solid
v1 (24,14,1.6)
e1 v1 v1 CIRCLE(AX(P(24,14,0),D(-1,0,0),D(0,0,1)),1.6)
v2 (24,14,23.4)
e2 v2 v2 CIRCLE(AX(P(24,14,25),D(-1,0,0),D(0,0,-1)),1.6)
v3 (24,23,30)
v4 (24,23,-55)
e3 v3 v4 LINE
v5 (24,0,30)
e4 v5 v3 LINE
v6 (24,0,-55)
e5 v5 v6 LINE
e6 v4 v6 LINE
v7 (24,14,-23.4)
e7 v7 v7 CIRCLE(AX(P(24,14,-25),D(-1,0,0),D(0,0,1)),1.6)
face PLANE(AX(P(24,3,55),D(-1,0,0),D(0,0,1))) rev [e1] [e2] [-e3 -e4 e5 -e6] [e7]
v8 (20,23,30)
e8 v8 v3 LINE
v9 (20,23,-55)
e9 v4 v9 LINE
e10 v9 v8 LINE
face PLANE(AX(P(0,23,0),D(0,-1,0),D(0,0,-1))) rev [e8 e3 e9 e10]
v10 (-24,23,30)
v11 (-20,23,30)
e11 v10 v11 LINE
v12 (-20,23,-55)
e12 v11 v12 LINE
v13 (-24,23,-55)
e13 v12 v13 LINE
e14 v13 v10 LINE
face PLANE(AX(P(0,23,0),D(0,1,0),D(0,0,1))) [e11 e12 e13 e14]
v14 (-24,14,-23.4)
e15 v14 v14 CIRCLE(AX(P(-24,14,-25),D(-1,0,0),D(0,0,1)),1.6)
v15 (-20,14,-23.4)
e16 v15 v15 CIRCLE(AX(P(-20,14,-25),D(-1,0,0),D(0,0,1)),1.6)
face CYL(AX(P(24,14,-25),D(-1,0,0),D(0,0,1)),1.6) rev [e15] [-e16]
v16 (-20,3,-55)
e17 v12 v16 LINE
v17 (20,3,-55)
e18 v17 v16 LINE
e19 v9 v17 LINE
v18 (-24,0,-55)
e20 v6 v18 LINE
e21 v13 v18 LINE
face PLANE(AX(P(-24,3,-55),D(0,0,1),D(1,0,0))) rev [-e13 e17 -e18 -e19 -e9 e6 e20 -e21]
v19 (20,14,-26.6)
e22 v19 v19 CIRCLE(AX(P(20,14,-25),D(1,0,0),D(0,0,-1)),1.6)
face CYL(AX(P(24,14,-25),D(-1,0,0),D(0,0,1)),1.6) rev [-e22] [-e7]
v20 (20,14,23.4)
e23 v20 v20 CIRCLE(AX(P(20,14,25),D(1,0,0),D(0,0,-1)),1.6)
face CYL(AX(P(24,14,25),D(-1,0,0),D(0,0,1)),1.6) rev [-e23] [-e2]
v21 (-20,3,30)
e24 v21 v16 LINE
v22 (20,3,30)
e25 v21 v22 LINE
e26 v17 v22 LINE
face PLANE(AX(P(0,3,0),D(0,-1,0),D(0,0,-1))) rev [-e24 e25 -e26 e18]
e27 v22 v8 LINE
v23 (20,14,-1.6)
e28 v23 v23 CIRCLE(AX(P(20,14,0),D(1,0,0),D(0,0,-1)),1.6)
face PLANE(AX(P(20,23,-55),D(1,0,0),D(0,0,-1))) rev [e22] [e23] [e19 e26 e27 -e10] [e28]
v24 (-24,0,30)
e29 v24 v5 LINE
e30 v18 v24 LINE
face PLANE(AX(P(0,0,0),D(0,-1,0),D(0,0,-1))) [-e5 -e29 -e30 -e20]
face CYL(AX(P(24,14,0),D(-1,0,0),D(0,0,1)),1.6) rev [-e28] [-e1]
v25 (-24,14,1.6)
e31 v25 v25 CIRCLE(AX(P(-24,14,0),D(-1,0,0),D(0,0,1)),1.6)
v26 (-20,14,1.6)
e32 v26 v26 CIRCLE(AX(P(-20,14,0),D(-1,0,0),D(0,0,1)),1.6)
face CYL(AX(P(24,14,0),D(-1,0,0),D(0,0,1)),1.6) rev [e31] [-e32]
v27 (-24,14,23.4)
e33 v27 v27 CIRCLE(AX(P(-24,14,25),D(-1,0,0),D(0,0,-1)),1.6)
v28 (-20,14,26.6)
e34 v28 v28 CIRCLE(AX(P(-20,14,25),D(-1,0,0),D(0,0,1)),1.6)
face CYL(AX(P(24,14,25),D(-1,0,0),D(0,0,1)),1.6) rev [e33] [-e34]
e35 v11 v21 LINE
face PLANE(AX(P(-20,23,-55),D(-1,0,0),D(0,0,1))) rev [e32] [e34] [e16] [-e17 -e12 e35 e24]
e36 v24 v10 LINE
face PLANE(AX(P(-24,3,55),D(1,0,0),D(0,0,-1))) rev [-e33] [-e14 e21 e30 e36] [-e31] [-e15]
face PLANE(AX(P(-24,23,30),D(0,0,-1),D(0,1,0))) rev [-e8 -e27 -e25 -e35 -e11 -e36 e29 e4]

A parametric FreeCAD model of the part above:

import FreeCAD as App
import Part
import Sketcher
Q = App.Units.Quantity

doc = App.newDocument("Part")
body = doc.addObject("PartDesign::Body", "Body")

# Sketch on XZ plane
sketch1 = body.newObject("Sketcher::SketchObject", "Sketch")
sketch1.AttachmentSupport = (doc.getObject("XZ_Plane"), [""])
sketch1.MapMode = "FlatFace"
sketch1.addGeometry(Part.LineSegment(App.Vector(-24, -55, 0), App.Vector(-24, 55, 0)), False)
sketch1.addGeometry(Part.LineSegment(App.Vector(-24, 55, 0), App.Vector(24, 55, 0)), False)
sketch1.addGeometry(Part.LineSegment(App.Vector(24, 55, 0), App.Vector(24, -55, 0)), False)
sketch1.addGeometry(Part.LineSegment(App.Vector(24, -55, 0), App.Vector(-24, -55, 0)), False)
sketch1.addConstraint(Sketcher.Constraint("Coincident", 0, 2, 1, 1))
sketch1.addConstraint(Sketcher.Constraint("Coincident", 1, 2, 2, 1))
sketch1.addConstraint(Sketcher.Constraint("Coincident", 2, 2, 3, 1))
sketch1.addConstraint(Sketcher.Constraint("Coincident", 3, 2, 0, 1))
sketch1.addConstraint(Sketcher.Constraint("Vertical", 0))
sketch1.addConstraint(Sketcher.Constraint("Horizontal", 1))
sketch1.addConstraint(Sketcher.Constraint("Vertical", 2))
sketch1.addConstraint(Sketcher.Constraint("Horizontal", 3))
sketch1.addConstraint(Sketcher.Constraint("Symmetric", 0, 2, 2, 2, -1, 1))
sketch1.addConstraint(Sketcher.Constraint("DistanceX", 1, 1, 1, 2, Q("48 mm")))
sketch1.addConstraint(Sketcher.Constraint("DistanceY", 0, 1, 0, 2, Q("110 mm")))
pad1 = body.newObject("PartDesign::Pad", "Pad")
pad1.Profile = sketch1
pad1.Length = 3
pad1.Reversed = True

# Sketch on XZ plane
sketch2 = body.newObject("Sketcher::SketchObject", "Sketch001")
sketch2.AttachmentSupport = (doc.getObject("XZ_Plane"), [""])
sketch2.MapMode = "FlatFace"
sketch2.AttachmentOffset = App.Placement(App.Vector(0, 0, -3), App.Rotation())
sketch2.addGeometry(Part.LineSegment(App.Vector(-24, -55, 0), App.Vector(-24, 55, 0)), False)
sketch2.addGeometry(Part.LineSegment(App.Vector(-24, 55, 0), App.Vector(-20, 55, 0)), False)
sketch2.addGeometry(Part.LineSegment(App.Vector(-20, 55, 0), App.Vector(-20, -55, 0)), False)
sketch2.addGeometry(Part.LineSegment(App.Vector(-20, -55, 0), App.Vector(-24, -55, 0)), False)
sketch2.addGeometry(Part.LineSegment(App.Vector(20, -55, 0), App.Vector(20, 55, 0)), False)
sketch2.addGeometry(Part.LineSegment(App.Vector(20, 55, 0), App.Vector(24, 55, 0)), False)
sketch2.addGeometry(Part.LineSegment(App.Vector(24, 55, 0), App.Vector(24, -55, 0)), False)
sketch2.addGeometry(Part.LineSegment(App.Vector(24, -55, 0), App.Vector(20, -55, 0)), False)
sketch2.addConstraint(Sketcher.Constraint("Coincident", 0, 2, 1, 1))
sketch2.addConstraint(Sketcher.Constraint("Coincident", 1, 2, 2, 1))
sketch2.addConstraint(Sketcher.Constraint("Coincident", 2, 2, 3, 1))
sketch2.addConstraint(Sketcher.Constraint("Coincident", 3, 2, 0, 1))
sketch2.addConstraint(Sketcher.Constraint("Coincident", 4, 2, 5, 1))
sketch2.addConstraint(Sketcher.Constraint("Coincident", 5, 2, 6, 1))
sketch2.addConstraint(Sketcher.Constraint("Coincident", 6, 2, 7, 1))
sketch2.addConstraint(Sketcher.Constraint("Coincident", 7, 2, 4, 1))
sketch2.addConstraint(Sketcher.Constraint("Vertical", 0))
sketch2.addConstraint(Sketcher.Constraint("Horizontal", 1))
sketch2.addConstraint(Sketcher.Constraint("Vertical", 2))
sketch2.addConstraint(Sketcher.Constraint("Horizontal", 3))
sketch2.addConstraint(Sketcher.Constraint("Vertical", 4))
sketch2.addConstraint(Sketcher.Constraint("Horizontal", 5))
sketch2.addConstraint(Sketcher.Constraint("Vertical", 6))
sketch2.addConstraint(Sketcher.Constraint("Horizontal", 7))
sketch2.addConstraint(Sketcher.Constraint("Symmetric", 2, 2, 4, 2, -1, 1))
sketch2.addConstraint(Sketcher.Constraint("Symmetric", 0, 2, 6, 2, -1, 1))
sketch2.addConstraint(Sketcher.Constraint("Horizontal", 1, 2, 4, 2))
sketch2.addConstraint(Sketcher.Constraint("DistanceX", 1, 1, 1, 2, Q("4 mm")))
sketch2.addConstraint(Sketcher.Constraint("DistanceY", 0, 1, 0, 2, Q("110 mm")))
sketch2.addConstraint(Sketcher.Constraint("DistanceX", 0, 2, -1, 1, Q("24 mm")))
pad2 = body.newObject("PartDesign::Pad", "Pad001")
pad2.Profile = sketch2
pad2.Length = 20
pad2.Reversed = True

# Sketch on YZ plane
sketch3 = body.newObject("Sketcher::SketchObject", "Sketch002")
sketch3.AttachmentSupport = (doc.getObject("YZ_Plane"), [""])
sketch3.MapMode = "FlatFace"
sketch3.AttachmentOffset = App.Placement(App.Vector(0, 0, -24), App.Rotation())
sketch3.addGeometry(Part.Circle(App.Vector(14, 0, 0), App.Vector(0, 0, 1), 1.6), False)
sketch3.addGeometry(Part.Circle(App.Vector(14, -25, 0), App.Vector(0, 0, 1), 1.6), False)
sketch3.addGeometry(Part.Circle(App.Vector(14, 25, 0), App.Vector(0, 0, 1), 1.6), False)
sketch3.addConstraint(Sketcher.Constraint("Equal", 0, 1))
sketch3.addConstraint(Sketcher.Constraint("Equal", 1, 2))
sketch3.addConstraint(Sketcher.Constraint("Symmetric", 1, 3, 2, 3, -1))
sketch3.addConstraint(Sketcher.Constraint("PointOnObject", 0, 3, -1))
sketch3.addConstraint(Sketcher.Constraint("Vertical", 0, 3, 1, 3))
sketch3.addConstraint(Sketcher.Constraint("Diameter", 0, Q("3.2 mm")))
sketch3.addConstraint(Sketcher.Constraint("DistanceX", -1, 1, 0, 3, Q("14 mm")))
sketch3.addConstraint(Sketcher.Constraint("DistanceY", 1, 3, -1, 1, Q("25 mm")))
pocket1 = body.newObject("PartDesign::Pocket", "Pocket")
pocket1.Profile = sketch3
pocket1.Type = "ThroughAll"
pocket1.Reversed = True

# Sketch on YZ plane
sketch4 = body.newObject("Sketcher::SketchObject", "Sketch003")
sketch4.AttachmentSupport = (doc.getObject("YZ_Plane"), [""])
sketch4.MapMode = "FlatFace"
sketch4.AttachmentOffset = App.Placement(App.Vector(0, 0, 24), App.Rotation())
sketch4.addGeometry(Part.LineSegment(App.Vector(23, 55, 0), App.Vector(0, 55, 0)), False)
sketch4.addGeometry(Part.LineSegment(App.Vector(0, 55, 0), App.Vector(0, 30, 0)), False)
sketch4.addGeometry(Part.LineSegment(App.Vector(0, 30, 0), App.Vector(23, 30, 0)), False)
sketch4.addGeometry(Part.LineSegment(App.Vector(23, 30, 0), App.Vector(23, 55, 0)), False)
sketch4.addConstraint(Sketcher.Constraint("Coincident", 0, 2, 1, 1))
sketch4.addConstraint(Sketcher.Constraint("Coincident", 1, 2, 2, 1))
sketch4.addConstraint(Sketcher.Constraint("Coincident", 2, 2, 3, 1))
sketch4.addConstraint(Sketcher.Constraint("Coincident", 3, 2, 0, 1))
sketch4.addConstraint(Sketcher.Constraint("Horizontal", 0))
sketch4.addConstraint(Sketcher.Constraint("Vertical", 1))
sketch4.addConstraint(Sketcher.Constraint("Horizontal", 2))
sketch4.addConstraint(Sketcher.Constraint("Vertical", 3))
sketch4.addConstraint(Sketcher.Constraint("PointOnObject", 0, 2, -2))
sketch4.addConstraint(Sketcher.Constraint("DistanceX", 0, 2, 0, 1, Q("23 mm")))
sketch4.addConstraint(Sketcher.Constraint("DistanceY", 1, 2, 1, 1, Q("25 mm")))
sketch4.addConstraint(Sketcher.Constraint("DistanceY", -1, 1, 0, 2, Q("55 mm")))
pocket2 = body.newObject("PartDesign::Pocket", "Pocket001")
pocket2.Profile = sketch4
pocket2.Type = "ThroughAll"

doc.recompute()
